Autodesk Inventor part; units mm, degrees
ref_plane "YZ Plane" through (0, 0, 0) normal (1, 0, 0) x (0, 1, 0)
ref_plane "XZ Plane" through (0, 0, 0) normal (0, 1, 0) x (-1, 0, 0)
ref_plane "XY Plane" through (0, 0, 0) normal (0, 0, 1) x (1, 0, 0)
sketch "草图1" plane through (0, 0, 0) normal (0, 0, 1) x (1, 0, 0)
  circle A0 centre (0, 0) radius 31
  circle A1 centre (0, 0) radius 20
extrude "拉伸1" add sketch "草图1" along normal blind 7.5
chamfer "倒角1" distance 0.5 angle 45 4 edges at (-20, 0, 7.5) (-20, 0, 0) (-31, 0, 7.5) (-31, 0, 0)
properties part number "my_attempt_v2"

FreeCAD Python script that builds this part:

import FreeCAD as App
import Part
import Sketcher


def edges_at(feature, points):
    """Names of the edges that pass closest to the given points."""
    edges = feature.Shape.Edges
    near = lambda p: min(range(len(edges)), key=lambda i: edges[i].distToShape(Part.Vertex(*p))[0])
    return sorted({f"Edge{near(p) + 1}" for p in points})

doc = App.newDocument("Part")
body = doc.addObject("PartDesign::Body", "Body")

sketch1 = body.newObject("Sketcher::SketchObject", "Sketch")
sketch1.AttachmentSupport = (doc.getObject("XY_Plane"), [""])
sketch1.MapMode = "FlatFace"
sketch1.addGeometry([
    Part.Circle(App.Vector(0, 0, 0), App.Vector(0, 0, 1), 31),
    Part.Circle(App.Vector(0, 0, 0), App.Vector(0, 0, 1), 20),
], False)
sketch1.addConstraint([
    Sketcher.Constraint("Coincident", 0, 3, -1, 1),
    Sketcher.Constraint("Coincident", 1, 3, -1, 1),
    Sketcher.Constraint("Diameter", 0, 62.0),
    Sketcher.Constraint("Diameter", 1, 40.0),
])
pad1 = body.newObject("PartDesign::Pad", "Pad")
pad1.Profile = sketch1
pad1.Length = 7.5
doc.recompute()

chamfer = body.newObject("PartDesign::Chamfer", "Chamfer")
chamfer.Base = (pad1, edges_at(pad1, [
    (-20, 0, 7.5),
    (-20, 0, 0),
    (-31, 0, 7.5),
    (-31, 0, 0),
]))
chamfer.Size = 0.5

doc.recompute()
